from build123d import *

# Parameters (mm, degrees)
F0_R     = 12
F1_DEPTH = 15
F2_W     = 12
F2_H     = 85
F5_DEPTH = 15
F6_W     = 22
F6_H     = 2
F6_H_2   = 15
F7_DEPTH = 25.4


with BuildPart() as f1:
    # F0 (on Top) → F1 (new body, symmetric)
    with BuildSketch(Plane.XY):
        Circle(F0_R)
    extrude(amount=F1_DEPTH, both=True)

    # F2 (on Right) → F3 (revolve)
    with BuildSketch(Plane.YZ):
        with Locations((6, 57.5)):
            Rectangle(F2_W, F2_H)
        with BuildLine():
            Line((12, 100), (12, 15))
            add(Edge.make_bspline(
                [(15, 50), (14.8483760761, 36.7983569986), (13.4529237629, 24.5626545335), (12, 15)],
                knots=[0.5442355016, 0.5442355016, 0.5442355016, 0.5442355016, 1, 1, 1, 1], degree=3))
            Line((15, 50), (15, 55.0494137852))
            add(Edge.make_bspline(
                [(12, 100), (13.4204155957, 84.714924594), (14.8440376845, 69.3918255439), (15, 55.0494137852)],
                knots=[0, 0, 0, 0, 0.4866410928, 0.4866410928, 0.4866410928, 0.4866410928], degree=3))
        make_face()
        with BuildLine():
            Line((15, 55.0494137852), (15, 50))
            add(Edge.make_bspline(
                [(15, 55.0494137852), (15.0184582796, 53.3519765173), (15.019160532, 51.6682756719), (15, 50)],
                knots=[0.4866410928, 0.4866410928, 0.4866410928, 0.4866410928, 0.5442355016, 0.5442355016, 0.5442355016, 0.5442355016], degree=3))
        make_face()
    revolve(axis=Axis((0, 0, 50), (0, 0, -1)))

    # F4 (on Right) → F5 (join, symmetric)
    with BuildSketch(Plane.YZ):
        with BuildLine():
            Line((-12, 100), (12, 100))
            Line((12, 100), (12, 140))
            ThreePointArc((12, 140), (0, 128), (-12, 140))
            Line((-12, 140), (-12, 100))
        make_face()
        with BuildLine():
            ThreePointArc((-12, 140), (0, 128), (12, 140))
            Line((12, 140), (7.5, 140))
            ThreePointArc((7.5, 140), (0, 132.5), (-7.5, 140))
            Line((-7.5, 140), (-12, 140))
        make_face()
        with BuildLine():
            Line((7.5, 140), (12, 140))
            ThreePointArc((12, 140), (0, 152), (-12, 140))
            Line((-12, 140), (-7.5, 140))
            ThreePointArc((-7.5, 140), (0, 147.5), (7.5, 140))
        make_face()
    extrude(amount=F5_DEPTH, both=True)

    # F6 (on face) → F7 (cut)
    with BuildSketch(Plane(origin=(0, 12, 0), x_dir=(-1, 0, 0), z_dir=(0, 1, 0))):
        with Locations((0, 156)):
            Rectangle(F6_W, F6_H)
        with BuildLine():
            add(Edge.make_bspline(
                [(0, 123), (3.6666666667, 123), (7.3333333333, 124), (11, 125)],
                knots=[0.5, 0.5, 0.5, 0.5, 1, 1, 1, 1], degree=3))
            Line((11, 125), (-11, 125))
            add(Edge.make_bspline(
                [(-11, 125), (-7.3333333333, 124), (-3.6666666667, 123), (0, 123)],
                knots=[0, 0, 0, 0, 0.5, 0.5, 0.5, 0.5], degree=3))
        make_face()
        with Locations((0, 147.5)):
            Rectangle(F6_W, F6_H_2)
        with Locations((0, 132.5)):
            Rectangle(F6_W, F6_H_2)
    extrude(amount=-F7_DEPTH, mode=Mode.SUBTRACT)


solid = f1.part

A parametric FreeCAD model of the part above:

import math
import FreeCAD as App
import Part
import Sketcher

V = App.Vector
Q = App.Units.Quantity

doc = App.newDocument("Part")
body = doc.addObject("PartDesign::Body", "Body")

# Sketch on XY plane
sketch1 = doc.addObject("Sketcher::SketchObject", "Sketch")
body.addObject(sketch1)
sketch1.AttachmentSupport = (doc.XY_Plane, [""])
sketch1.MapMode = "FlatFace"
sketch1.addGeometry(Part.Circle(V(0, 0, 0), V(0, 0, 1), 12), False)
sketch1.addConstraint([
    Sketcher.Constraint("Coincident", 0, 3, -1, 1),
    Sketcher.Constraint("Diameter", 0, Q("24 mm")),
])
pad1 = doc.addObject("PartDesign::Pad", "Pad")
body.addObject(pad1)
pad1.Profile = sketch1
pad1.Length = 30
pad1.Midplane = True

# Sketch on YZ plane
sketch2 = doc.addObject("Sketcher::SketchObject", "Sketch001")
body.addObject(sketch2)
sketch2.AttachmentSupport = (doc.YZ_Plane, [""])
sketch2.MapMode = "FlatFace"
sketch2.addGeometry([
    Part.LineSegment(V(0, 100, 0), V(0, 15, 0)),  # 0
    Part.LineSegment(V(0, 15, 0), V(12, 15, 0)),  # 1
    Part.BSplineCurve([V(15, 50, 0), V(14.848376, 36.798357, 0), V(13.452924, 24.562655, 0), V(12, 15, 0)], [4, 4], [0.544235502, 1], False, 3, [1, 1, 1, 1], False),  # 2
    Part.BSplineCurve([V(15, 55.049414, 0), V(15.018458, 53.351977, 0), V(15.019161, 51.668276, 0), V(15, 50, 0)], [4, 4], [0.486641093, 0.544235502], False, 3, [1, 1, 1, 1], False),  # 3
    Part.BSplineCurve([V(12, 100, 0), V(13.420416, 84.714925, 0), V(14.844038, 69.391826, 0), V(15, 55.049414, 0)], [4, 4], [0, 0.486641093], False, 3, [1, 1, 1, 1], False),  # 4
    Part.LineSegment(V(12, 100, 0), V(0, 100, 0)),  # 5
], False)
sketch2.addConstraint([
    Sketcher.Constraint("Block", 2),
    Sketcher.Constraint("Block", 3),
    Sketcher.Constraint("Block", 4),
    Sketcher.Constraint("Coincident", 0, 2, 1, 1),
    Sketcher.Constraint("Coincident", 1, 2, 2, 2),
    Sketcher.Constraint("Coincident", 4, 1, 5, 1),
    Sketcher.Constraint("Coincident", 5, 2, 0, 1),
    Sketcher.Constraint("Vertical", 0),
    Sketcher.Constraint("Horizontal", 1),
    Sketcher.Constraint("Horizontal", 5),
    Sketcher.Constraint("PointOnObject", 0, 2, -2),
])
revolution = doc.addObject("PartDesign::Revolution", "Revolution")
body.addObject(revolution)
revolution.Profile = sketch2
revolution.ReferenceAxis = (sketch2, ["V_Axis"])
revolution.Angle = 360

# Sketch on YZ plane
sketch3 = doc.addObject("Sketcher::SketchObject", "Sketch002")
body.addObject(sketch3)
sketch3.AttachmentSupport = (doc.YZ_Plane, [""])
sketch3.MapMode = "FlatFace"
sketch3.addGeometry([
    Part.LineSegment(V(-12, 100, 0), V(12, 100, 0)),  # 0
    Part.LineSegment(V(12, 100, 0), V(12, 140, 0)),  # 1
    Part.ArcOfCircle(Part.Circle(V(0, 140, 0), V(0, 0, 1), 12), math.radians(0), math.radians(180)),  # 2
    Part.LineSegment(V(-12, 140, 0), V(-12, 100, 0)),  # 3
    Part.Circle(V(0, 140, 0), V(0, 0, 1), 8),  # 4
], False)
sketch3.addConstraint([
    Sketcher.Constraint("Coincident", 0, 2, 1, 1),
    Sketcher.Constraint("Tangent", 1, 2, 2, 1),
    Sketcher.Constraint("Tangent", 2, 2, 3, 1),
    Sketcher.Constraint("Coincident", 3, 2, 0, 1),
    Sketcher.Constraint("Horizontal", 0),
    Sketcher.Constraint("Vertical", 1),
    Sketcher.Constraint("Vertical", 3),
    Sketcher.Constraint("Coincident", 4, 3, 2, 3),
    Sketcher.Constraint("PointOnObject", 2, 3, -2),
    Sketcher.Constraint("Diameter", 4, Q("15 mm")),
    Sketcher.Constraint("Radius", 2, Q("12 mm")),
    Sketcher.Constraint("DistanceY", 1, 1, 1, 2, Q("40 mm")),
    Sketcher.Constraint("DistanceY", -1, 1, 2, 3, Q("140 mm")),
])
pad2 = doc.addObject("PartDesign::Pad", "Pad001")
body.addObject(pad2)
pad2.Profile = sketch3
pad2.Length = 30
pad2.Midplane = True

# Sketch on XZ plane
sketch4 = doc.addObject("Sketcher::SketchObject", "Sketch003")
body.addObject(sketch4)
sketch4.AttachmentSupport = (doc.XZ_Plane, [""])
sketch4.MapMode = "FlatFace"
sketch4.AttachmentOffset = App.Placement(V(0, 0, -12), App.Rotation())
sketch4.addGeometry([
    Part.LineSegment(V(11, 157, 0), V(11, 125, 0)),
    Part.BSplineCurve([V(11, 125, 0), V(7.333333, 124, 0), V(0, 122, 0), V(-7.333333, 124, 0), V(-11, 125, 0)], [4, 1, 4], [0, 0.5, 1], False, 3, [1, 1, 1, 1, 1], False),
    Part.LineSegment(V(-11, 125, 0), V(-11, 157, 0)),
    Part.LineSegment(V(-11, 157, 0), V(11, 157, 0)),
], False)
sketch4.addConstraint([
    Sketcher.Constraint("Block", 1),
    Sketcher.Constraint("Coincident", 0, 2, 1, 1),
    Sketcher.Constraint("Coincident", 1, 2, 2, 1),
    Sketcher.Constraint("Coincident", 2, 2, 3, 1),
    Sketcher.Constraint("Coincident", 3, 2, 0, 1),
    Sketcher.Constraint("Vertical", 0),
    Sketcher.Constraint("Vertical", 2),
    Sketcher.Constraint("Horizontal", 3),
    Sketcher.Constraint("DistanceY", 0, 2, 0, 1, Q("32 mm")),
])
pocket1 = doc.addObject("PartDesign::Pocket", "Pocket")
body.addObject(pocket1)
pocket1.Profile = sketch4
pocket1.Length = 25.4
pocket1.Reversed = True

doc.recompute()
